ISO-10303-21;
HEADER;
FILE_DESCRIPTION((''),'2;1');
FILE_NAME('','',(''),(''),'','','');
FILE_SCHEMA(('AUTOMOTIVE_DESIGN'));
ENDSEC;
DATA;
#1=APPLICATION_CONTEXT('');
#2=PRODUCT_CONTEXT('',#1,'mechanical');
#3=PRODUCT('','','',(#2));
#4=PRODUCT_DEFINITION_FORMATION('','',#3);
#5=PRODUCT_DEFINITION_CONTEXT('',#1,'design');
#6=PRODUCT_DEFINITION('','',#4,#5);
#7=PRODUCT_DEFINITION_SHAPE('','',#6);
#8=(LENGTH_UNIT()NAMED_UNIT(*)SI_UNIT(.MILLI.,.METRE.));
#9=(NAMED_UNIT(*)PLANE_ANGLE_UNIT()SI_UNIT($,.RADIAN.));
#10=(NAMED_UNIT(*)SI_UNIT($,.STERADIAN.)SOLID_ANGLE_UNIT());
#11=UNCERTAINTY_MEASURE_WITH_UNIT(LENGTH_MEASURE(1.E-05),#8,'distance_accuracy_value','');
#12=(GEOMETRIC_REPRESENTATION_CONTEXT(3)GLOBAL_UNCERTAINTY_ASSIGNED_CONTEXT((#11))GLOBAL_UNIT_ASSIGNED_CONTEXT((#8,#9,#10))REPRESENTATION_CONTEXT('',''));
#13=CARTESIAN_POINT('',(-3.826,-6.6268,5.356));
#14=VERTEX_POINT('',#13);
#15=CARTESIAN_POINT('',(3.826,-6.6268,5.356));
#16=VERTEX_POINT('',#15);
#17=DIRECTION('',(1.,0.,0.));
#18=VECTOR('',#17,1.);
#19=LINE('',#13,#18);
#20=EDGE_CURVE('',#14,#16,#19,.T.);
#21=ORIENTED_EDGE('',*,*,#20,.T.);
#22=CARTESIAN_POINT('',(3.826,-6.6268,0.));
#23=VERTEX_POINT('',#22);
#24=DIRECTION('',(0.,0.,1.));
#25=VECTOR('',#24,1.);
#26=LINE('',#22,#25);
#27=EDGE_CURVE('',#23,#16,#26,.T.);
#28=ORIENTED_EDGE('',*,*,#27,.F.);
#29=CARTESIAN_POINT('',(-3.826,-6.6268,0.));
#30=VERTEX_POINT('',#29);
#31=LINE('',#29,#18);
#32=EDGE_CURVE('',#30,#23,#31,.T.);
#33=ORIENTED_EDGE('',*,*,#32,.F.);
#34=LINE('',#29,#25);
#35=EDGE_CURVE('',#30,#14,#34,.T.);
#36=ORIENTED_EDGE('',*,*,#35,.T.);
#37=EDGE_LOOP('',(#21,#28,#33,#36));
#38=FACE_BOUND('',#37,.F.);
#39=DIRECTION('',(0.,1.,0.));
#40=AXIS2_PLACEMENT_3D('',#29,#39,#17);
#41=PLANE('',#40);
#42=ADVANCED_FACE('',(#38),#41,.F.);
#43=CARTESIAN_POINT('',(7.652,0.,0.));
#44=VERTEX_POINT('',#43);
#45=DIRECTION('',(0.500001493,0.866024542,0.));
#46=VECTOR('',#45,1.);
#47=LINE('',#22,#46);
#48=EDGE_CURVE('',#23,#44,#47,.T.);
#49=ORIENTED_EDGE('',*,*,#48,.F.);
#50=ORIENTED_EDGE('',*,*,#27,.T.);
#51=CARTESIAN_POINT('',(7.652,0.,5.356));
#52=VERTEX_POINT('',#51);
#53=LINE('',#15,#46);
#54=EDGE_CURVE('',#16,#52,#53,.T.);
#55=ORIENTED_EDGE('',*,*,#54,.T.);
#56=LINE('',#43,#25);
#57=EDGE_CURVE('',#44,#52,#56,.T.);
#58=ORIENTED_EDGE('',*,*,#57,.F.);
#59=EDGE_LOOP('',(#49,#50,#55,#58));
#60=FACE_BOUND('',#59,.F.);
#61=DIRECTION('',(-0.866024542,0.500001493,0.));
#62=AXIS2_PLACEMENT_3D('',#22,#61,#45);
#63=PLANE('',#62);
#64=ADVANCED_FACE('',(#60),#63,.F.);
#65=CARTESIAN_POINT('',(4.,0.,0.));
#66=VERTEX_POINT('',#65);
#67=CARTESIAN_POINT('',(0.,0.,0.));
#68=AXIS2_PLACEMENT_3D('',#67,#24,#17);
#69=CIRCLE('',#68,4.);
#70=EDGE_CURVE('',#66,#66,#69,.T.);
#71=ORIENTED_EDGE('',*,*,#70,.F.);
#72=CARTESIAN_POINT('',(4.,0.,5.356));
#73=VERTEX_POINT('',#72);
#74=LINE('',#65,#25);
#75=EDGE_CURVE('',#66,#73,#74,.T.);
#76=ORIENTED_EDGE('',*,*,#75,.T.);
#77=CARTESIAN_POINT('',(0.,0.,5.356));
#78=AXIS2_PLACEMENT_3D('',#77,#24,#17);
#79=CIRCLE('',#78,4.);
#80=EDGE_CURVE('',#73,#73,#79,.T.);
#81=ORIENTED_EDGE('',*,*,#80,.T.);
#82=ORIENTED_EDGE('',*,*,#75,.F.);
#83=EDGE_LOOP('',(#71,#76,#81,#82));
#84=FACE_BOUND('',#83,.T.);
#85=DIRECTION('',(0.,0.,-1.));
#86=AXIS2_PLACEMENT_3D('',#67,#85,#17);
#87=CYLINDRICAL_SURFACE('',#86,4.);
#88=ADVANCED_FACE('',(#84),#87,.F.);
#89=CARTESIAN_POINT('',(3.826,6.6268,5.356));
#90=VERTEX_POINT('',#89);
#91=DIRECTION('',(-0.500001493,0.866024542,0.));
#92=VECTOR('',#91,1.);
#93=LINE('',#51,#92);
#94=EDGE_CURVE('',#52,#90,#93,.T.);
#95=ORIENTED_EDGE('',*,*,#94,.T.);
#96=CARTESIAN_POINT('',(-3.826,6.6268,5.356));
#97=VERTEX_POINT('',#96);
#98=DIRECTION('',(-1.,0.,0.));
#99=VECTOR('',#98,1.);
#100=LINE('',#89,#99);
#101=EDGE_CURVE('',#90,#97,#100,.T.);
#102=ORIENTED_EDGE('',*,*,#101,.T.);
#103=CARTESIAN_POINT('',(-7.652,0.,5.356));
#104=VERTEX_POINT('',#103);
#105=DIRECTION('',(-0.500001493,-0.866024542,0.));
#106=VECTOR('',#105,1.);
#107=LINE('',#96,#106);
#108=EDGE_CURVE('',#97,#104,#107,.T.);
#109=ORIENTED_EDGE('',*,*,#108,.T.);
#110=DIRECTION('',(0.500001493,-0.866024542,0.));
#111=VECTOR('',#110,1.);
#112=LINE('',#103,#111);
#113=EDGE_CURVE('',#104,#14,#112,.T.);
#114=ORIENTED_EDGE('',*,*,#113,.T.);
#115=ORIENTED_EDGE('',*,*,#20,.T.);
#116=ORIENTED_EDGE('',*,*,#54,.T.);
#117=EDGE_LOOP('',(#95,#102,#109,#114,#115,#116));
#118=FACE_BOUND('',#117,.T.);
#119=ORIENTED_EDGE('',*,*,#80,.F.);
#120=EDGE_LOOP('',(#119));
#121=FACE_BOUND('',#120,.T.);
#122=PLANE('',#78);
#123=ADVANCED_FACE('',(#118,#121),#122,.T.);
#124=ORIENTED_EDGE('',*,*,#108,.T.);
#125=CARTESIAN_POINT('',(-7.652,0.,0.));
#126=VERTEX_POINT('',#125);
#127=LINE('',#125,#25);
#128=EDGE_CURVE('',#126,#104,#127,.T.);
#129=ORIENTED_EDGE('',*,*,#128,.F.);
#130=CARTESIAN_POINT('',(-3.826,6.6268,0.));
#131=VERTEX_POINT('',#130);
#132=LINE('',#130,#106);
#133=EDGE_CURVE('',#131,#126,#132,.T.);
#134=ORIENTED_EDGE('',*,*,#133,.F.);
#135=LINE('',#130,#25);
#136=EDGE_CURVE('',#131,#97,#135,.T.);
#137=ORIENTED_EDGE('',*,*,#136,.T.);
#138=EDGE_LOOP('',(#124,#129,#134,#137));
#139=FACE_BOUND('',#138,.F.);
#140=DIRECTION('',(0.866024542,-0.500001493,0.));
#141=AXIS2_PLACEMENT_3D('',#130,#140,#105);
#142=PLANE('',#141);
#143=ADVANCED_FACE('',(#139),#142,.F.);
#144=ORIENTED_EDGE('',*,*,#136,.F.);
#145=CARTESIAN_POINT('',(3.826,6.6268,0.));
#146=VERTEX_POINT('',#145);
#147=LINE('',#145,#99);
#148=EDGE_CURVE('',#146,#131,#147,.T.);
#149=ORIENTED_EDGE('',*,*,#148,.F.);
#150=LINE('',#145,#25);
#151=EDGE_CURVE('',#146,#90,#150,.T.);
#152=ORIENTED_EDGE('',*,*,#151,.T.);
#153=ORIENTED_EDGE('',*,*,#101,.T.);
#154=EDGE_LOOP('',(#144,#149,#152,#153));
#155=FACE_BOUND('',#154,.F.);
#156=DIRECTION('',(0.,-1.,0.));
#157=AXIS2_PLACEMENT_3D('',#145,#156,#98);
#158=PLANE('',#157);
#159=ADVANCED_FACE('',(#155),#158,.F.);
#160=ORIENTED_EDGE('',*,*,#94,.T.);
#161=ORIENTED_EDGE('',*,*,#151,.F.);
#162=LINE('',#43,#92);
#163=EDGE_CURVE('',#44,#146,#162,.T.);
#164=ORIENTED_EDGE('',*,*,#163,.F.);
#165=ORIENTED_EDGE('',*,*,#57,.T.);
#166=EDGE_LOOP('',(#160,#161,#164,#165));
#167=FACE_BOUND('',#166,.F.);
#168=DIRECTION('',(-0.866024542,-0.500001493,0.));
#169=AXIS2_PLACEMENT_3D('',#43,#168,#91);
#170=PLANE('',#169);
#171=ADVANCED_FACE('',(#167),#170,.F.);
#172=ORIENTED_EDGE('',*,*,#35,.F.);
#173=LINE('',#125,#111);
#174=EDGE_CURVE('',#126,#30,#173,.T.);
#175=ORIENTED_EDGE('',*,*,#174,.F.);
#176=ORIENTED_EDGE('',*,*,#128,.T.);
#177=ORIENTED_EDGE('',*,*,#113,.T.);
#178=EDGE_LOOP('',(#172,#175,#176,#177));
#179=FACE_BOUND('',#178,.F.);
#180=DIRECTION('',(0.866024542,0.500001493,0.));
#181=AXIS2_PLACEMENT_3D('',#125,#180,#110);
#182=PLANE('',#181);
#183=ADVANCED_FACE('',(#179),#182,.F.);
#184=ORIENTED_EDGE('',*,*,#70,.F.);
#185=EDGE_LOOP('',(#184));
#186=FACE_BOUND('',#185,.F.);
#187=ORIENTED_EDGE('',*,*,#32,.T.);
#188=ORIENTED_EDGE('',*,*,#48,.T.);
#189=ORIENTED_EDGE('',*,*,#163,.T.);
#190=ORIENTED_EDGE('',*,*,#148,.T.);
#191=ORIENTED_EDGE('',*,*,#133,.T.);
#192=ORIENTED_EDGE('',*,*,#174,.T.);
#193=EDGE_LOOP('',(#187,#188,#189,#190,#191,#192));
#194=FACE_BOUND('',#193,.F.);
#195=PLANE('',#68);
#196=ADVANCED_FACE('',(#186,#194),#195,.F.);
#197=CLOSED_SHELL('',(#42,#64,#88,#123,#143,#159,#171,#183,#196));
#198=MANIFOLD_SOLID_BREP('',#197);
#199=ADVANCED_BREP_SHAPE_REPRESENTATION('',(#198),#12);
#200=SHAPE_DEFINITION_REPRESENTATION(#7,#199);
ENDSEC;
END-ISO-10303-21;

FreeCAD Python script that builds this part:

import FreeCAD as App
import Part
import Sketcher
from FreeCAD import Vector
Q = App.Units.Quantity

doc = App.newDocument("Part")
params = doc.addObject("Spreadsheet::Sheet", "Params")
for row, (alias, value) in enumerate([
    ("sketch1_diameter", "8 mm"),
    ("pad1_length", "5.356 mm"),
], start=1):
    params.set(f"A{row}", alias)
    params.set(f"B{row}", "=" + value)
    params.setAlias(f"B{row}", alias)

body = doc.addObject("PartDesign::Body", "Body")

sketch1 = body.newObject("Sketcher::SketchObject", "Sketch")
sketch1.AttachmentSupport = (doc.getObject("XY_Plane"), [""])
sketch1.MapMode = "FlatFace"
sketch1.addGeometry([
    Part.LineSegment(Vector(3.826, 6.6268, 0), Vector(-3.826, 6.6268, 0)),
    Part.LineSegment(Vector(-3.826, 6.6268, 0), Vector(-7.652, 0, 0)),
    Part.LineSegment(Vector(-7.652, 0, 0), Vector(-3.826, -6.6268, 0)),
    Part.LineSegment(Vector(-3.826, -6.6268, 0), Vector(3.826, -6.6268, 0)),
    Part.LineSegment(Vector(3.826, -6.6268, 0), Vector(7.652, 0, 0)),
    Part.LineSegment(Vector(7.652, 0, 0), Vector(3.826, 6.6268, 0)),
    Part.Circle(Vector(0, 0, 0), Vector(0, 0, 1), 4),
], False)
sketch1.addConstraint([
    Sketcher.Constraint("Coincident", 0, 2, 1, 1),
    Sketcher.Constraint("Coincident", 1, 2, 2, 1),
    Sketcher.Constraint("Coincident", 2, 2, 3, 1),
    Sketcher.Constraint("Coincident", 3, 2, 4, 1),
    Sketcher.Constraint("Coincident", 4, 2, 5, 1),
    Sketcher.Constraint("Coincident", 5, 2, 0, 1),
    Sketcher.Constraint("Horizontal", 0),
    Sketcher.Constraint("Horizontal", 3),
    Sketcher.Constraint("Coincident", 6, 3, -1, 1),
    Sketcher.Constraint("Symmetric", 0, 2, 3, 2, -1, 1),
    Sketcher.Constraint("Symmetric", 1, 2, 4, 2, -1, 1),
    Sketcher.Constraint("PointOnObject", 1, 2, -1),
    Sketcher.Constraint("Parallel", 2, 5),
    Sketcher.Constraint("Vertical", 0, 2, 2, 2),
    Sketcher.Constraint("Diameter", 6, Q("8 mm")),
    Sketcher.Constraint("Angle", 1, Q("-120 deg")),
    Sketcher.Constraint("DistanceX", 0, 2, 0, 1, Q("7.652 mm")),
    Sketcher.Constraint("Distance", 1, Q("7.652 mm")),
])
sketch1.setExpression("Constraints[14]", "Params.sketch1_diameter")
pad1 = body.newObject("PartDesign::Pad", "Pad")
pad1.Profile = sketch1
pad1.setExpression("Length", "Params.pad1_length")

doc.recompute()
